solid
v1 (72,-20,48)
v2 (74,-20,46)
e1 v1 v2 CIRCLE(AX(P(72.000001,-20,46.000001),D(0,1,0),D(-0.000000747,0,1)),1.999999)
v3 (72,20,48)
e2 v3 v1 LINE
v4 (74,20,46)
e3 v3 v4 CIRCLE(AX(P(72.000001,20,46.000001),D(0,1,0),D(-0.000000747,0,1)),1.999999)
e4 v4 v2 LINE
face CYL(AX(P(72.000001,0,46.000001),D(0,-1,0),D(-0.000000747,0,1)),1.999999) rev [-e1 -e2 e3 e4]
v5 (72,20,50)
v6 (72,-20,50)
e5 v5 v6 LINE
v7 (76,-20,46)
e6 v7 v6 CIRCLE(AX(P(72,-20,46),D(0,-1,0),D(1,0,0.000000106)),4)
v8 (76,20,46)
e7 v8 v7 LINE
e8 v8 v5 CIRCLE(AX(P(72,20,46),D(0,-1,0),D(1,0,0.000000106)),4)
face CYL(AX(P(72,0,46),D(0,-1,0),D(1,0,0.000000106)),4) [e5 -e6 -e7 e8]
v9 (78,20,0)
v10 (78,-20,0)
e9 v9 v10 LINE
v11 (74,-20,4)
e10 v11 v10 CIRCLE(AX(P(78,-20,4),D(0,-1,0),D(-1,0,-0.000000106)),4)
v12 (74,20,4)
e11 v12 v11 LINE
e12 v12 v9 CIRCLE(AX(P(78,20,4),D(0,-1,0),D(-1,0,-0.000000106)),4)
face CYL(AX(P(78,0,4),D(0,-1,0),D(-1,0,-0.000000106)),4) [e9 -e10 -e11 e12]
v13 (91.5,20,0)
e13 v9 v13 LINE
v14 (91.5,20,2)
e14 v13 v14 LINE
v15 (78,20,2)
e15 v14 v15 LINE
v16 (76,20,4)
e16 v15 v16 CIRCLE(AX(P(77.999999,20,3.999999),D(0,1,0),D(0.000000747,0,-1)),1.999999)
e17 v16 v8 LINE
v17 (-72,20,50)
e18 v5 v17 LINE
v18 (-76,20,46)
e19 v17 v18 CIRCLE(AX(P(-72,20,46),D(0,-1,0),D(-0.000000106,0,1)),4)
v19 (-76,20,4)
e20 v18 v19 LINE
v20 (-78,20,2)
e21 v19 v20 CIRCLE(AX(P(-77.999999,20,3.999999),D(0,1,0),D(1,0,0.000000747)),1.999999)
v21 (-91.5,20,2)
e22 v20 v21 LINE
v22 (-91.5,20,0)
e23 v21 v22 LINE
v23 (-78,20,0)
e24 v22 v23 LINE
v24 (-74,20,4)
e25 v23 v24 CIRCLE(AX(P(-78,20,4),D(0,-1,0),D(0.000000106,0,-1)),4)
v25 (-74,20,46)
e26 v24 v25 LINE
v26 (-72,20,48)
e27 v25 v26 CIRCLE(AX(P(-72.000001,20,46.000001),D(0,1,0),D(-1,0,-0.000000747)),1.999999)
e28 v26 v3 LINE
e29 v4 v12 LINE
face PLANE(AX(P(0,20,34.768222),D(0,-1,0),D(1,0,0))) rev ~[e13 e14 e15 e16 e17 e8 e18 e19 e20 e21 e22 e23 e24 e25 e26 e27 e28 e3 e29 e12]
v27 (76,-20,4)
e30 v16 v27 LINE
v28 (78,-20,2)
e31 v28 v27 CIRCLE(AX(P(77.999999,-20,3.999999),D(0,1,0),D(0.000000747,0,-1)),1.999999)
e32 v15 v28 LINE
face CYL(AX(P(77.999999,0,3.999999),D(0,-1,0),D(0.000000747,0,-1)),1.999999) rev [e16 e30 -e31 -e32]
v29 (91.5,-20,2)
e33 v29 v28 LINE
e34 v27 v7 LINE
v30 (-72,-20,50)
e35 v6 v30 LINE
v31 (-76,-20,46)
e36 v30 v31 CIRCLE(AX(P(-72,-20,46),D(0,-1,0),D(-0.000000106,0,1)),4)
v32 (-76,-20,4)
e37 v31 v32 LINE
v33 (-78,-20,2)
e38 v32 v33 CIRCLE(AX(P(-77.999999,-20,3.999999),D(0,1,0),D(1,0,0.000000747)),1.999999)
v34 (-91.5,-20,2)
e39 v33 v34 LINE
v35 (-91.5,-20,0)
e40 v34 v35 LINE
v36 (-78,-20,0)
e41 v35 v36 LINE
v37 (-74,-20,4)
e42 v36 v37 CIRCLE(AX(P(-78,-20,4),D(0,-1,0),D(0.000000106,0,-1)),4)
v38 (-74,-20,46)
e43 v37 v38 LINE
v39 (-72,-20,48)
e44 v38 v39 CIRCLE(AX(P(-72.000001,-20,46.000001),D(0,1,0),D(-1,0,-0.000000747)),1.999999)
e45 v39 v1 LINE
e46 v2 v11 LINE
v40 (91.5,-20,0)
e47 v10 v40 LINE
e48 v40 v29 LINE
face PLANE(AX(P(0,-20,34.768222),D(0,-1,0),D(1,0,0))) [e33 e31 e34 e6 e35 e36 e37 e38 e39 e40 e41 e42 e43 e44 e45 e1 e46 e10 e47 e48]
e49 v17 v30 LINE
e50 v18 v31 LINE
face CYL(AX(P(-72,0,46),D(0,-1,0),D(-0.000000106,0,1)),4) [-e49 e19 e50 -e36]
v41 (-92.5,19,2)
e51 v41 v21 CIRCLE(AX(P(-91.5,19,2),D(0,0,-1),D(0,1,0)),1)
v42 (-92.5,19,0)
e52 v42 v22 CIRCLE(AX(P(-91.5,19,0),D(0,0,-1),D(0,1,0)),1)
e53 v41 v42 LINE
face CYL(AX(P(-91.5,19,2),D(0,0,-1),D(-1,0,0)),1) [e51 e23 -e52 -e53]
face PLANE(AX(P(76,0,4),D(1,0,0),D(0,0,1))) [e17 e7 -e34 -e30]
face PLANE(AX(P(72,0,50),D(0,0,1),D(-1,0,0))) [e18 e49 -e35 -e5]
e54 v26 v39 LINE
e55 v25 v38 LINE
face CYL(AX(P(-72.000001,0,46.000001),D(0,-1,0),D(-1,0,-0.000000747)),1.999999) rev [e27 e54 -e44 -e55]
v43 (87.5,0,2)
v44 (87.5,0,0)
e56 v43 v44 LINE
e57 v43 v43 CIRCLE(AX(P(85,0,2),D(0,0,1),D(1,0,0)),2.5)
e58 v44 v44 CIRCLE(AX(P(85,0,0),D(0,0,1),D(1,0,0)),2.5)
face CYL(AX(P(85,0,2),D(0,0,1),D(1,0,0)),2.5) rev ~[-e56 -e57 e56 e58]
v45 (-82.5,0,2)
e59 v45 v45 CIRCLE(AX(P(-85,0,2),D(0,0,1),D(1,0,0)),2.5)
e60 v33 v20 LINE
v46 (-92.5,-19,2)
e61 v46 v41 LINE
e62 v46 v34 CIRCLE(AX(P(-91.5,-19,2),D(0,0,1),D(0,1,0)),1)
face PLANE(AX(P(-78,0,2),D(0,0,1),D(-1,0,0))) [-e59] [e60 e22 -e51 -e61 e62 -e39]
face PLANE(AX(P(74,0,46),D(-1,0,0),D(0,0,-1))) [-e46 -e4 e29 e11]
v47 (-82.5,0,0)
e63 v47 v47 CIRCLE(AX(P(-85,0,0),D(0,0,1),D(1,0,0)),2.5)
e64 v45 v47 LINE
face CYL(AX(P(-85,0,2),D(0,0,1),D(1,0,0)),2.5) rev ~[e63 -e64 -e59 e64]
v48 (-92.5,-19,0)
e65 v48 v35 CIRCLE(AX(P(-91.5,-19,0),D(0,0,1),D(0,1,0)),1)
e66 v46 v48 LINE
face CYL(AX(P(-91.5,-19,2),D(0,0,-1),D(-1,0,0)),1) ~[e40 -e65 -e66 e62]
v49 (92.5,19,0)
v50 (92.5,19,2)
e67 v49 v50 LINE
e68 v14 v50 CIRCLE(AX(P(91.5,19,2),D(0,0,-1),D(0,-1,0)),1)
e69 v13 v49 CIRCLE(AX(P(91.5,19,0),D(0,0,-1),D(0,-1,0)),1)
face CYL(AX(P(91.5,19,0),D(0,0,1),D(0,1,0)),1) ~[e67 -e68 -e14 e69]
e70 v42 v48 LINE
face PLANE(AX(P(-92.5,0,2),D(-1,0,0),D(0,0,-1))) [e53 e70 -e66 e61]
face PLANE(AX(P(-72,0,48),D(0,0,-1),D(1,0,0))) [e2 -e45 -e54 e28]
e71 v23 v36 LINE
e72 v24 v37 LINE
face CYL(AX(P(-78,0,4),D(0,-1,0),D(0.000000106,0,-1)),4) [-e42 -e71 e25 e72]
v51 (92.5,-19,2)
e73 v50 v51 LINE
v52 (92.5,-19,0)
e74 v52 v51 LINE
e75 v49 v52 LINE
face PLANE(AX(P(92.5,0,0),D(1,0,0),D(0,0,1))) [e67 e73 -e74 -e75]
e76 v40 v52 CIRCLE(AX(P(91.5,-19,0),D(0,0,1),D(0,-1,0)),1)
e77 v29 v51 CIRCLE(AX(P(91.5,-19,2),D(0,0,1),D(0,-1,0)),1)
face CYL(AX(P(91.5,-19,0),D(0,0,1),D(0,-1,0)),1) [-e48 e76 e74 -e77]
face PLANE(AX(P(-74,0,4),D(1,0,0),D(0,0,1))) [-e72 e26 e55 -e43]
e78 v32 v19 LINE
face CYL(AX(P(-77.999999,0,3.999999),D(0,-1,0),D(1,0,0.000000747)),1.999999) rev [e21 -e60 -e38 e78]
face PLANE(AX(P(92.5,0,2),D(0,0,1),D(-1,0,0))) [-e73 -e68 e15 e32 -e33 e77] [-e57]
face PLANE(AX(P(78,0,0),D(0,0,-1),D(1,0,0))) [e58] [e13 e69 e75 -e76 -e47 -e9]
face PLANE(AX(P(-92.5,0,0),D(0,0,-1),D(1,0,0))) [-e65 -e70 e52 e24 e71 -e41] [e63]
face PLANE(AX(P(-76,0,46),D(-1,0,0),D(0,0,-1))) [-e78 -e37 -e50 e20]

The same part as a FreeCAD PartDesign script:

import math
import FreeCAD as App
import Part
import Sketcher
from FreeCAD import Vector
Q = App.Units.Quantity


def edges_at(feature, points):
    """Names of the edges that pass closest to the given points."""
    edges = feature.Shape.Edges
    near = lambda p: min(range(len(edges)), key=lambda i: edges[i].distToShape(Part.Vertex(*p))[0])
    return sorted({f"Edge{near(p) + 1}" for p in points})

doc = App.newDocument("Part")
body = doc.addObject("PartDesign::Body", "Body")

sketch1 = body.newObject("Sketcher::SketchObject", "Sketch")
sketch1.AttachmentSupport = (doc.getObject("XZ_Plane"), [""])
sketch1.MapMode = "FlatFace"
sketch1.addGeometry([
    Part.LineSegment(Vector(-92.5, 2, 0), Vector(-92.5, 0, 0)),
    Part.LineSegment(Vector(-92.5, 0, 0), Vector(-78, 0, 0)),
    Part.ArcOfCircle(Part.Circle(Vector(-78, 4, 0), Vector(0, 0, 1), 4), math.radians(-90), math.radians(0)),
    Part.LineSegment(Vector(-74, 4, 0), Vector(-74, 46, 0)),
    Part.ArcOfCircle(Part.Circle(Vector(-72, 46, 0), Vector(0, 0, 1), 2), math.radians(90), math.radians(180)),
    Part.LineSegment(Vector(-72, 48, 0), Vector(72, 48, 0)),
    Part.ArcOfCircle(Part.Circle(Vector(72, 46, 0), Vector(0, 0, 1), 2), math.radians(0), math.radians(90)),
    Part.LineSegment(Vector(74, 46, 0), Vector(74, 4, 0)),
    Part.ArcOfCircle(Part.Circle(Vector(78, 4, 0), Vector(0, 0, 1), 4), math.radians(-180), math.radians(-90)),
    Part.LineSegment(Vector(78, 0, 0), Vector(92.5, 0, 0)),
    Part.LineSegment(Vector(92.5, 0, 0), Vector(92.5, 2, 0)),
    Part.LineSegment(Vector(92.5, 2, 0), Vector(78, 2, 0)),
    Part.ArcOfCircle(Part.Circle(Vector(78, 4, 0), Vector(0, 0, 1), 2), math.radians(180), math.radians(270)),
    Part.LineSegment(Vector(76, 4, 0), Vector(76, 46, 0)),
    Part.ArcOfCircle(Part.Circle(Vector(72, 46, 0), Vector(0, 0, 1), 4), math.radians(0), math.radians(90)),
    Part.LineSegment(Vector(72, 50, 0), Vector(-72, 50, 0)),
    Part.ArcOfCircle(Part.Circle(Vector(-72, 46, 0), Vector(0, 0, 1), 4), math.radians(90), math.radians(180)),
    Part.LineSegment(Vector(-76, 46, 0), Vector(-76, 4, 0)),
    Part.ArcOfCircle(Part.Circle(Vector(-78, 4, 0), Vector(0, 0, 1), 2), math.radians(-90), math.radians(0)),
    Part.LineSegment(Vector(-78, 2, 0), Vector(-92.5, 2, 0)),
], False)
sketch1.addConstraint([
    Sketcher.Constraint("Coincident", 0, 2, 1, 1),
    Sketcher.Constraint("Tangent", 1, 2, 2, 1),
    Sketcher.Constraint("Tangent", 2, 2, 3, 1),
    Sketcher.Constraint("Tangent", 3, 2, 4, 2),
    Sketcher.Constraint("Tangent", 4, 1, 5, 1),
    Sketcher.Constraint("Tangent", 5, 2, 6, 2),
    Sketcher.Constraint("Tangent", 6, 1, 7, 1),
    Sketcher.Constraint("Tangent", 7, 2, 8, 1),
    Sketcher.Constraint("Tangent", 8, 2, 9, 1),
    Sketcher.Constraint("Coincident", 9, 2, 10, 1),
    Sketcher.Constraint("Coincident", 10, 2, 11, 1),
    Sketcher.Constraint("Tangent", 11, 2, 12, 2),
    Sketcher.Constraint("Tangent", 12, 1, 13, 1),
    Sketcher.Constraint("Tangent", 13, 2, 14, 1),
    Sketcher.Constraint("Tangent", 14, 2, 15, 1),
    Sketcher.Constraint("Tangent", 15, 2, 16, 1),
    Sketcher.Constraint("Tangent", 16, 2, 17, 1),
    Sketcher.Constraint("Tangent", 17, 2, 18, 2),
    Sketcher.Constraint("Tangent", 18, 1, 19, 1),
    Sketcher.Constraint("Coincident", 19, 2, 0, 1),
    Sketcher.Constraint("Vertical", 0),
    Sketcher.Constraint("Horizontal", 1),
    Sketcher.Constraint("Vertical", 3),
    Sketcher.Constraint("Horizontal", 5),
    Sketcher.Constraint("Vertical", 7),
    Sketcher.Constraint("Horizontal", 9),
    Sketcher.Constraint("Vertical", 10),
    Sketcher.Constraint("Horizontal", 11),
    Sketcher.Constraint("Vertical", 13),
    Sketcher.Constraint("Horizontal", 15),
    Sketcher.Constraint("Vertical", 17),
    Sketcher.Constraint("Horizontal", 19),
    Sketcher.Constraint("Coincident", 12, 3, 8, 3),
    Sketcher.Constraint("Coincident", 14, 3, 6, 3),
    Sketcher.Constraint("Coincident", 16, 3, 4, 3),
    Sketcher.Constraint("Coincident", 18, 3, 2, 3),
    Sketcher.Constraint("Equal", 4, 6),
    Sketcher.Constraint("Equal", 2, 8),
    Sketcher.Constraint("Equal", 6, 12),
    Sketcher.Constraint("Symmetric", 1, 2, 8, 2, -1, 1),
    Sketcher.Constraint("Symmetric", 0, 2, 9, 2, -2),
    Sketcher.Constraint("Radius", 2, Q("4 mm")),
    Sketcher.Constraint("Radius", 4, Q("1.999999 mm")),
    Sketcher.Constraint("DistanceX", 5, 1, 5, 2, Q("144 mm")),
    Sketcher.Constraint("DistanceY", 3, 1, 3, 2, Q("42 mm")),
    Sketcher.Constraint("DistanceX", 1, 1, 1, 2, Q("14.5 mm")),
])
pad1 = body.newObject("PartDesign::Pad", "Pad")
pad1.Profile = sketch1
pad1.Length = 40
pad1.Midplane = True

sketch2 = body.newObject("Sketcher::SketchObject", "Sketch001")
sketch2.AttachmentSupport = (doc.getObject("XY_Plane"), [""])
sketch2.MapMode = "FlatFace"
sketch2.AttachmentOffset = App.Placement(Vector(0, 0, 2), App.Rotation())
sketch2.addGeometry([
    Part.Circle(Vector(-85, 0, 0), Vector(0, 0, 1), 2.5),
    Part.Circle(Vector(85, 0, 0), Vector(0, 0, 1), 2.5),
], False)
sketch2.addConstraint([
    Sketcher.Constraint("Equal", 0, 1),
    Sketcher.Constraint("Symmetric", 0, 3, 1, 3, -1, 1),
    Sketcher.Constraint("PointOnObject", 0, 3, -1),
    Sketcher.Constraint("Diameter", 0, Q("5 mm")),
    Sketcher.Constraint("DistanceX", 0, 3, -1, 1, Q("85 mm")),
])
pocket1 = body.newObject("PartDesign::Pocket", "Pocket")
pocket1.Profile = sketch2
pocket1.Type = "ThroughAll"
doc.recompute()

fillet = body.newObject("PartDesign::Fillet", "Fillet")
fillet.Base = (pocket1, edges_at(pocket1, [
    (-92.5, -20, 1),
    (-92.5, 20, 1),
    (92.5, -20, 1),
    (92.5, 20, 1),
]))
fillet.Radius = 1

doc.recompute()
